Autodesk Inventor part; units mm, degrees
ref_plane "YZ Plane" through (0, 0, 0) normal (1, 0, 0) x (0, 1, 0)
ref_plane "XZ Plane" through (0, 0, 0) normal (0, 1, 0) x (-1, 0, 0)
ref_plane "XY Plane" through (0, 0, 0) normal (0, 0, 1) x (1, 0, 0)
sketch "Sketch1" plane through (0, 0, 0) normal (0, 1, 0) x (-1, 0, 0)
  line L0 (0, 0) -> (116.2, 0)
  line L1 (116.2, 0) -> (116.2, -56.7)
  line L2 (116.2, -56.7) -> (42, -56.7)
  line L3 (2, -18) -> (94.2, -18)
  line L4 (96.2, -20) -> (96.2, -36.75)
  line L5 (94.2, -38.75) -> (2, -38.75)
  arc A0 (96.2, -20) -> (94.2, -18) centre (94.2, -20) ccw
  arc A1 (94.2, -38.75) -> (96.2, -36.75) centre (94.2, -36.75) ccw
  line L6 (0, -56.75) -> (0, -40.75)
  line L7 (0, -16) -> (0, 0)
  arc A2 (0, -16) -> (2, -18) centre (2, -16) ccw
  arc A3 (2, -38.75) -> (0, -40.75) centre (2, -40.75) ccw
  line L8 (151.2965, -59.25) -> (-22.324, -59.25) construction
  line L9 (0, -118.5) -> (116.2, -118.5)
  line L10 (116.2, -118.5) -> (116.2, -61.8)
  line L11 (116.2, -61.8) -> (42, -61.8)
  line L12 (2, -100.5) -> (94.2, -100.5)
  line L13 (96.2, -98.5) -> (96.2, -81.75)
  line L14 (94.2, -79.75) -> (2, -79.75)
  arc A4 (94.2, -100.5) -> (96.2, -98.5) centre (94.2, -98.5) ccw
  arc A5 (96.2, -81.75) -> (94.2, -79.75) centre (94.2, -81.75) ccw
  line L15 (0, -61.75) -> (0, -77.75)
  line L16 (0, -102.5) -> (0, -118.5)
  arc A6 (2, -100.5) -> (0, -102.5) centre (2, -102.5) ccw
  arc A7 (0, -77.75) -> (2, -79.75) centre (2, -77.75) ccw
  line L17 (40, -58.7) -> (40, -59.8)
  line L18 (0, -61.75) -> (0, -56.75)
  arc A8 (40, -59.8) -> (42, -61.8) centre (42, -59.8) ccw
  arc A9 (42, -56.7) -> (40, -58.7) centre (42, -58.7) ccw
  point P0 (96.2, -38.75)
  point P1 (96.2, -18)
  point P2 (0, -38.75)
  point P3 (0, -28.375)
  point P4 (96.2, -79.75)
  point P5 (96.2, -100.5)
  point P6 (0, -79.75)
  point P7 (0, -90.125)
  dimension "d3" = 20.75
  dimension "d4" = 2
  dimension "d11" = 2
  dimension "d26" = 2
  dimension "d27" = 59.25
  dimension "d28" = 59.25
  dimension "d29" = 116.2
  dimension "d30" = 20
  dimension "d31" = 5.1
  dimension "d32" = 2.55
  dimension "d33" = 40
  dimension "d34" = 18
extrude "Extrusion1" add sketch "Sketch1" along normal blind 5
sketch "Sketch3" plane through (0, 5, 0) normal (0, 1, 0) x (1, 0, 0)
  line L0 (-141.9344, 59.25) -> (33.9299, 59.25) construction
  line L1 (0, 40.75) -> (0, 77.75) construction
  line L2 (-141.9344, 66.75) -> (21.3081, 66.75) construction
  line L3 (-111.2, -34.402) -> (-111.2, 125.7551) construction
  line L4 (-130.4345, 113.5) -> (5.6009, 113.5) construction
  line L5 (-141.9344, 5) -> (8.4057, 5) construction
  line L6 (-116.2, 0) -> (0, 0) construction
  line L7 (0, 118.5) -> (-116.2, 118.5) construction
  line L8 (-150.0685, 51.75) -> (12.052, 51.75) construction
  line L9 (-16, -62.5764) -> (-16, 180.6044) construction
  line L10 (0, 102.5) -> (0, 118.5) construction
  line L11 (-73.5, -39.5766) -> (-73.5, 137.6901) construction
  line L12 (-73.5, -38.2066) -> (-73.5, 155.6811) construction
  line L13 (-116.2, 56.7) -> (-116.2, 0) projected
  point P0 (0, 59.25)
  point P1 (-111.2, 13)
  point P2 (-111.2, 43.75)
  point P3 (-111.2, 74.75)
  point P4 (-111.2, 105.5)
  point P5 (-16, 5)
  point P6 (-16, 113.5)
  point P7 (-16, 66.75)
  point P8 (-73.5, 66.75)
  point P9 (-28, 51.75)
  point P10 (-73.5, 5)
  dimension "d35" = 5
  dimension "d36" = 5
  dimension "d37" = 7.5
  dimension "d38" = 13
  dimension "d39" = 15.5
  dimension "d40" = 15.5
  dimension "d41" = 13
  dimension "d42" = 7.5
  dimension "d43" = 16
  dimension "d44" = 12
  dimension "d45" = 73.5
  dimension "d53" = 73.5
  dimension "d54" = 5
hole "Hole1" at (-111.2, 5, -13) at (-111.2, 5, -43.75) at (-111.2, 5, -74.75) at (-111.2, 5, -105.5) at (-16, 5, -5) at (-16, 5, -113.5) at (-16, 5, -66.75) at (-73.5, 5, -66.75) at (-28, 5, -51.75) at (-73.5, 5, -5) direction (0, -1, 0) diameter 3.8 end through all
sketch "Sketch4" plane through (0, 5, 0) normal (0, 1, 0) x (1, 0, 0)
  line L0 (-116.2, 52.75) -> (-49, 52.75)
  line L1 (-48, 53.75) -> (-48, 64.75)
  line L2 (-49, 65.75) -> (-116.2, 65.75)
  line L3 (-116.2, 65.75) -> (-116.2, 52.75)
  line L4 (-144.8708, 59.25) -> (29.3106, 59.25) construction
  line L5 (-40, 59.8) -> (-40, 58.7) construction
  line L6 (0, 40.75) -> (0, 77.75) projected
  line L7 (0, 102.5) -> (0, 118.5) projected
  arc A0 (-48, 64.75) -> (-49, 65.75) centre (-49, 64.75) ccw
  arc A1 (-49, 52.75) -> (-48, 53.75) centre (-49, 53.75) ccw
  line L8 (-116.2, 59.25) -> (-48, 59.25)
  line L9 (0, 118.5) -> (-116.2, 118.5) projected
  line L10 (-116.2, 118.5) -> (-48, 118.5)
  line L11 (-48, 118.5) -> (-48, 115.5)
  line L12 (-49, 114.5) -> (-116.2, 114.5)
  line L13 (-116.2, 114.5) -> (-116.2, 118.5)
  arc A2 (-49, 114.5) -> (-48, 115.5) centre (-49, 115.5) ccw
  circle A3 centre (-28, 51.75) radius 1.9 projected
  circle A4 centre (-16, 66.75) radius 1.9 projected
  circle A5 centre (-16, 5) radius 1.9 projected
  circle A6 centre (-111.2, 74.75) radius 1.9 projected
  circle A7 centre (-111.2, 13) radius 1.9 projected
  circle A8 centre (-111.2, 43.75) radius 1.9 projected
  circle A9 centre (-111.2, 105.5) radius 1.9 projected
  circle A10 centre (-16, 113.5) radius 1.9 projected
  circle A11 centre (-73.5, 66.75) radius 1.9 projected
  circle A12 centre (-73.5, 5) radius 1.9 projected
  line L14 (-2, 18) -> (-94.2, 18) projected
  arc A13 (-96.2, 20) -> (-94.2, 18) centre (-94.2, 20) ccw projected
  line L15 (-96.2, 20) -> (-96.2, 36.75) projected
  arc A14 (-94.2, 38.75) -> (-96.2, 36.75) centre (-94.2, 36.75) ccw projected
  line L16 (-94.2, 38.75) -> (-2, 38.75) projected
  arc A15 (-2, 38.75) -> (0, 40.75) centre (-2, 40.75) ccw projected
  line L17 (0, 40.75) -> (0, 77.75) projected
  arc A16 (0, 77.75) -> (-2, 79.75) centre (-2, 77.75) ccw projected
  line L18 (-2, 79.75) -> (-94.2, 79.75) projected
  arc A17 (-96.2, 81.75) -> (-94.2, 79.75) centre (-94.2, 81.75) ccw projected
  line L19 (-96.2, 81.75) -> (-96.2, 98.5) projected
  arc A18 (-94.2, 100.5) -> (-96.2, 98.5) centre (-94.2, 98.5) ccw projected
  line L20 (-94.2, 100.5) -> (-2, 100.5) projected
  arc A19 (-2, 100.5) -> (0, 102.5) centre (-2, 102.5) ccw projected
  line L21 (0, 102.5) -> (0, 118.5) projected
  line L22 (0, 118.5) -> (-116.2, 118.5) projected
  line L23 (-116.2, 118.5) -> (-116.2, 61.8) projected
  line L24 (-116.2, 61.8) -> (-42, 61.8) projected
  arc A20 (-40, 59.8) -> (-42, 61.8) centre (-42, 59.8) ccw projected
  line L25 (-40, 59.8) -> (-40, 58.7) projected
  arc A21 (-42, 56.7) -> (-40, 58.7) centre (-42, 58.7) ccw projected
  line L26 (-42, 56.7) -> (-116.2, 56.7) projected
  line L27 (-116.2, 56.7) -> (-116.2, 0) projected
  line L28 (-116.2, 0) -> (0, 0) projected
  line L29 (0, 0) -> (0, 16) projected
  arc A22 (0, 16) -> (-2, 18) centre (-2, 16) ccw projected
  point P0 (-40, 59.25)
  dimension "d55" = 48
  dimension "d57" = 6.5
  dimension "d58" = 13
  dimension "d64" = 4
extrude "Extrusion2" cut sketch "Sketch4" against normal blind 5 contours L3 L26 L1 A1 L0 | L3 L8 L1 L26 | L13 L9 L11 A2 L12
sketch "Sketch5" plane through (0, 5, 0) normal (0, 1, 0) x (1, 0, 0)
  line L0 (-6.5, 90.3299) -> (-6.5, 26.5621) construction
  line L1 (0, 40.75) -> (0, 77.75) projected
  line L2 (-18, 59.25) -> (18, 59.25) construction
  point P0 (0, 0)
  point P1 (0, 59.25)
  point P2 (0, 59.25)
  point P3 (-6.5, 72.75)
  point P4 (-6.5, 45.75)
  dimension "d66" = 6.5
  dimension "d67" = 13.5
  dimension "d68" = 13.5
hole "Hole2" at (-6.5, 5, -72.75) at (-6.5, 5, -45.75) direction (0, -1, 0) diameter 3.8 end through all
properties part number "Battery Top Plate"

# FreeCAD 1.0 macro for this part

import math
import FreeCAD as App
import Part
import Sketcher

doc = App.newDocument("Part")
params = doc.addObject("Spreadsheet::Sheet", "Params")
for row, (alias, value) in enumerate([
    ("sketch1_radius", "2 mm"),
    ("sketch1_width", "116.2 mm"),
    ("sketch1_height", "37 mm"),
    ("pad1_length", "5 mm"),
    ("sketch2_diameter", "3.8 mm"),
    ("hole_diameter", "3.8 mm"),
    ("sketch3_height", "4 mm"),
    ("sketch3_height2", "6.5 mm"),
    ("sketch3_radius", "1 mm"),
    ("sketch3_width", "67.2 mm"),
    ("pocket1_length", "5 mm"),
    ("sketch4_diameter", "3.8 mm"),
    ("hole2_diameter", "3.8 mm"),
], start=1):
    params.set(f"A{row}", alias)
    params.set(f"B{row}", "=" + value)
    params.setAlias(f"B{row}", alias)

body = doc.addObject("PartDesign::Body", "Body")

sketch1 = doc.addObject("Sketcher::SketchObject", "Sketch")
body.addObject(sketch1)
sketch1.AttachmentSupport = (doc.XZ_Plane, [""])
sketch1.MapMode = "FlatFace"
sketch1.addGeometry(Part.LineSegment(App.Vector(-116.2, 0, 0), App.Vector(0, 0, 0)), False)
sketch1.addGeometry(Part.LineSegment(App.Vector(0, 0, 0), App.Vector(0, -16, 0)), False)
sketch1.addGeometry(Part.ArcOfCircle(Part.Circle(App.Vector(-2, -16, 0), App.Vector(0, 0, 1), 2), math.radians(-90), math.radians(0)), False)
sketch1.addGeometry(Part.LineSegment(App.Vector(-2, -18, 0), App.Vector(-94.2, -18, 0)), False)
sketch1.addGeometry(Part.ArcOfCircle(Part.Circle(App.Vector(-94.2, -20, 0), App.Vector(0, 0, 1), 2), math.radians(90), math.radians(180)), False)
sketch1.addGeometry(Part.LineSegment(App.Vector(-96.2, -20, 0), App.Vector(-96.2, -36.8, 0)), False)
sketch1.addGeometry(Part.ArcOfCircle(Part.Circle(App.Vector(-94.2, -36.8, 0), App.Vector(0, 0, 1), 2), math.radians(180), math.radians(270)), False)
sketch1.addGeometry(Part.LineSegment(App.Vector(-94.2, -38.8, 0), App.Vector(-2, -38.8, 0)), False)
sketch1.addGeometry(Part.ArcOfCircle(Part.Circle(App.Vector(-2, -40.8, 0), App.Vector(0, 0, 1), 2), math.radians(0), math.radians(90)), False)
sketch1.addGeometry(Part.LineSegment(App.Vector(0, -40.8, 0), App.Vector(0, -77.8, 0)), False)
sketch1.addGeometry(Part.ArcOfCircle(Part.Circle(App.Vector(-2, -77.8, 0), App.Vector(0, 0, 1), 2), math.radians(-90), math.radians(0)), False)
sketch1.addGeometry(Part.LineSegment(App.Vector(-2, -79.8, 0), App.Vector(-94.2, -79.8, 0)), False)
sketch1.addGeometry(Part.ArcOfCircle(Part.Circle(App.Vector(-94.2, -81.8, 0), App.Vector(0, 0, 1), 2), math.radians(90), math.radians(180)), False)
sketch1.addGeometry(Part.LineSegment(App.Vector(-96.2, -81.8, 0), App.Vector(-96.2, -98.5, 0)), False)
sketch1.addGeometry(Part.ArcOfCircle(Part.Circle(App.Vector(-94.2, -98.5, 0), App.Vector(0, 0, 1), 2), math.radians(180), math.radians(270)), False)
sketch1.addGeometry(Part.LineSegment(App.Vector(-94.2, -100.5, 0), App.Vector(-2, -100.5, 0)), False)
sketch1.addGeometry(Part.ArcOfCircle(Part.Circle(App.Vector(-2, -102.5, 0), App.Vector(0, 0, 1), 2), math.radians(0), math.radians(90)), False)
sketch1.addGeometry(Part.LineSegment(App.Vector(0, -102.5, 0), App.Vector(0, -118.5, 0)), False)
sketch1.addGeometry(Part.LineSegment(App.Vector(0, -118.5, 0), App.Vector(-116.2, -118.5, 0)), False)
sketch1.addGeometry(Part.LineSegment(App.Vector(-116.2, -118.5, 0), App.Vector(-116.2, -61.8, 0)), False)
sketch1.addGeometry(Part.LineSegment(App.Vector(-116.2, -61.8, 0), App.Vector(-42, -61.8, 0)), False)
sketch1.addGeometry(Part.ArcOfCircle(Part.Circle(App.Vector(-42, -59.8, 0), App.Vector(0, 0, 1), 2), math.radians(-90), math.radians(0)), False)
sketch1.addGeometry(Part.LineSegment(App.Vector(-40, -59.8, 0), App.Vector(-40, -58.7, 0)), False)
sketch1.addGeometry(Part.ArcOfCircle(Part.Circle(App.Vector(-42, -58.7, 0), App.Vector(0, 0, 1), 2), math.radians(0), math.radians(90)), False)
sketch1.addGeometry(Part.LineSegment(App.Vector(-42, -56.7, 0), App.Vector(-116.2, -56.7, 0)), False)
sketch1.addGeometry(Part.LineSegment(App.Vector(-116.2, -56.7, 0), App.Vector(-116.2, 0, 0)), False)
sketch1.addConstraint(Sketcher.Constraint("Coincident", 0, 2, 1, 1))
sketch1.addConstraint(Sketcher.Constraint("Tangent", 1, 2, 2, 2))
sketch1.addConstraint(Sketcher.Constraint("Tangent", 2, 1, 3, 1))
sketch1.addConstraint(Sketcher.Constraint("Tangent", 3, 2, 4, 1))
sketch1.addConstraint(Sketcher.Constraint("Tangent", 4, 2, 5, 1))
sketch1.addConstraint(Sketcher.Constraint("Tangent", 5, 2, 6, 1))
sketch1.addConstraint(Sketcher.Constraint("Tangent", 6, 2, 7, 1))
sketch1.addConstraint(Sketcher.Constraint("Tangent", 7, 2, 8, 2))
sketch1.addConstraint(Sketcher.Constraint("Tangent", 8, 1, 9, 1))
sketch1.addConstraint(Sketcher.Constraint("Tangent", 9, 2, 10, 2))
sketch1.addConstraint(Sketcher.Constraint("Tangent", 10, 1, 11, 1))
sketch1.addConstraint(Sketcher.Constraint("Tangent", 11, 2, 12, 1))
sketch1.addConstraint(Sketcher.Constraint("Tangent", 12, 2, 13, 1))
sketch1.addConstraint(Sketcher.Constraint("Tangent", 13, 2, 14, 1))
sketch1.addConstraint(Sketcher.Constraint("Tangent", 14, 2, 15, 1))
sketch1.addConstraint(Sketcher.Constraint("Tangent", 15, 2, 16, 2))
sketch1.addConstraint(Sketcher.Constraint("Tangent", 16, 1, 17, 1))
sketch1.addConstraint(Sketcher.Constraint("Coincident", 17, 2, 18, 1))
sketch1.addConstraint(Sketcher.Constraint("Coincident", 18, 2, 19, 1))
sketch1.addConstraint(Sketcher.Constraint("Coincident", 19, 2, 20, 1))
sketch1.addConstraint(Sketcher.Constraint("Tangent", 20, 2, 21, 1))
sketch1.addConstraint(Sketcher.Constraint("Tangent", 21, 2, 22, 1))
sketch1.addConstraint(Sketcher.Constraint("Tangent", 22, 2, 23, 1))
sketch1.addConstraint(Sketcher.Constraint("Tangent", 23, 2, 24, 1))
sketch1.addConstraint(Sketcher.Constraint("Coincident", 24, 2, 25, 1))
sketch1.addConstraint(Sketcher.Constraint("Coincident", 25, 2, 0, 1))
sketch1.addConstraint(Sketcher.Constraint("Horizontal", 0))
sketch1.addConstraint(Sketcher.Constraint("Vertical", 1))
sketch1.addConstraint(Sketcher.Constraint("Horizontal", 3))
sketch1.addConstraint(Sketcher.Constraint("Vertical", 5))
sketch1.addConstraint(Sketcher.Constraint("Horizontal", 7))
sketch1.addConstraint(Sketcher.Constraint("Vertical", 9))
sketch1.addConstraint(Sketcher.Constraint("Horizontal", 11))
sketch1.addConstraint(Sketcher.Constraint("Vertical", 13))
sketch1.addConstraint(Sketcher.Constraint("Horizontal", 15))
sketch1.addConstraint(Sketcher.Constraint("Vertical", 17))
sketch1.addConstraint(Sketcher.Constraint("Horizontal", 18))
sketch1.addConstraint(Sketcher.Constraint("Vertical", 19))
sketch1.addConstraint(Sketcher.Constraint("Horizontal", 20))
sketch1.addConstraint(Sketcher.Constraint("Vertical", 22))
sketch1.addConstraint(Sketcher.Constraint("Horizontal", 24))
sketch1.addConstraint(Sketcher.Constraint("Vertical", 25))
sketch1.addConstraint(Sketcher.Constraint("Coincident", 0, 2, -1, 1))
sketch1.addConstraint(Sketcher.Constraint("Equal", 2, 4))
sketch1.addConstraint(Sketcher.Constraint("Equal", 4, 6))
sketch1.addConstraint(Sketcher.Constraint("Equal", 6, 8))
sketch1.addConstraint(Sketcher.Constraint("Equal", 8, 10))
sketch1.addConstraint(Sketcher.Constraint("Equal", 10, 12))
sketch1.addConstraint(Sketcher.Constraint("Equal", 12, 14))
sketch1.addConstraint(Sketcher.Constraint("Equal", 14, 16))
sketch1.addConstraint(Sketcher.Constraint("Equal", 16, 21))
sketch1.addConstraint(Sketcher.Constraint("Equal", 21, 23))
sketch1.addConstraint(Sketcher.Constraint("PointOnObject", 8, 1, -2))
sketch1.addConstraint(Sketcher.Constraint("PointOnObject", 16, 1, -2))
sketch1.addConstraint(Sketcher.Constraint("Vertical", 6, 3, 12, 3))
sketch1.addConstraint(Sketcher.Constraint("Vertical", 19, 2, 24, 2))
sketch1.addConstraint(Sketcher.Constraint("Equal", 5, 13))
sketch1.addConstraint(Sketcher.Constraint("Equal", 1, 17))
sketch1.addConstraint(Sketcher.Constraint("Equal", 19, 25))
sketch1.addConstraint(Sketcher.Constraint("Radius", 2, 2.0))
sketch1.addConstraint(Sketcher.Constraint("DistanceX", 0, 1, 0, 2, 116.2))
sketch1.addConstraint(Sketcher.Constraint("DistanceY", 4, 3, -1, 1, 20.0))
sketch1.addConstraint(Sketcher.Constraint("DistanceX", 21, 2, -1, 1, 40.0))
sketch1.addConstraint(Sketcher.Constraint("DistanceX", 18, 2, 13, 2, 20.0))
sketch1.addConstraint(Sketcher.Constraint("DistanceY", 20, 2, 23, 2, 5.1))
sketch1.addConstraint(Sketcher.Constraint("DistanceY", 9, 2, 9, 1, 37.0))
sketch1.addConstraint(Sketcher.Constraint("DistanceY", 6, 3, 2, 3, 20.75))
sketch1.setExpression("Constraints[59]", "Params.sketch1_radius")
sketch1.setExpression("Constraints[60]", "Params.sketch1_width")
sketch1.setExpression("Constraints[65]", "Params.sketch1_height")
pad1 = doc.addObject("PartDesign::Pad", "Pad")
body.addObject(pad1)
pad1.Profile = sketch1
pad1.setExpression("Length", "Params.pad1_length")
pad1.Reversed = True

sketch2 = doc.addObject("Sketcher::SketchObject", "Sketch001")
body.addObject(sketch2)
sketch2.AttachmentSupport = (doc.XZ_Plane, [""])
sketch2.MapMode = "FlatFace"
sketch2.AttachmentOffset = App.Placement(App.Vector(0, 0, -5), App.Rotation())
sketch2.addGeometry(Part.Circle(App.Vector(-111.2, -13, 0), App.Vector(0, 0, 1), 1.9), False)
sketch2.addGeometry(Part.Circle(App.Vector(-111.2, -43.8, 0), App.Vector(0, 0, 1), 1.9), False)
sketch2.addGeometry(Part.Circle(App.Vector(-111.2, -74.8, 0), App.Vector(0, 0, 1), 1.9), False)
sketch2.addGeometry(Part.Circle(App.Vector(-111.2, -105.5, 0), App.Vector(0, 0, 1), 1.9), False)
sketch2.addGeometry(Part.Circle(App.Vector(-16, -5, 0), App.Vector(0, 0, 1), 1.9), False)
sketch2.addGeometry(Part.Circle(App.Vector(-16, -113.5, 0), App.Vector(0, 0, 1), 1.9), False)
sketch2.addGeometry(Part.Circle(App.Vector(-16, -66.8, 0), App.Vector(0, 0, 1), 1.9), False)
sketch2.addGeometry(Part.Circle(App.Vector(-73.5, -66.8, 0), App.Vector(0, 0, 1), 1.9), False)
sketch2.addGeometry(Part.Circle(App.Vector(-28, -51.8, 0), App.Vector(0, 0, 1), 1.9), False)
sketch2.addGeometry(Part.Circle(App.Vector(-73.5, -5, 0), App.Vector(0, 0, 1), 1.9), False)
sketch2.addConstraint(Sketcher.Constraint("Equal", 0, 1))
sketch2.addConstraint(Sketcher.Constraint("Equal", 1, 2))
sketch2.addConstraint(Sketcher.Constraint("Equal", 2, 3))
sketch2.addConstraint(Sketcher.Constraint("Equal", 3, 4))
sketch2.addConstraint(Sketcher.Constraint("Equal", 4, 5))
sketch2.addConstraint(Sketcher.Constraint("Equal", 5, 6))
sketch2.addConstraint(Sketcher.Constraint("Equal", 6, 7))
sketch2.addConstraint(Sketcher.Constraint("Equal", 7, 8))
sketch2.addConstraint(Sketcher.Constraint("Equal", 8, 9))
sketch2.addConstraint(Sketcher.Constraint("Horizontal", 6, 3, 7, 3))
sketch2.addConstraint(Sketcher.Constraint("Horizontal", 4, 3, 9, 3))
sketch2.addConstraint(Sketcher.Constraint("Vertical", 0, 3, 1, 3))
sketch2.addConstraint(Sketcher.Constraint("Vertical", 1, 3, 2, 3))
sketch2.addConstraint(Sketcher.Constraint("Vertical", 2, 3, 3, 3))
sketch2.addConstraint(Sketcher.Constraint("Vertical", 4, 3, 5, 3))
sketch2.addConstraint(Sketcher.Constraint("Vertical", 5, 3, 6, 3))
sketch2.addConstraint(Sketcher.Constraint("Vertical", 7, 3, 9, 3))
sketch2.addConstraint(Sketcher.Constraint("Diameter", 0, 3.8))
sketch2.addConstraint(Sketcher.Constraint("DistanceY", 0, 3, -1, 1, 13.0))
sketch2.addConstraint(Sketcher.Constraint("DistanceX", 4, 3, -1, 1, 16.0))
sketch2.addConstraint(Sketcher.Constraint("DistanceY", 4, 3, -1, 1, 5.0))
sketch2.addConstraint(Sketcher.Constraint("DistanceX", 8, 3, -1, 1, 28.0))
sketch2.addConstraint(Sketcher.Constraint("DistanceY", 2, 3, 1, 3, 31.0))
sketch2.addConstraint(Sketcher.Constraint("DistanceY", 5, 3, 3, 3, 8.0))
sketch2.addConstraint(Sketcher.Constraint("DistanceY", 2, 3, 6, 3, 8.0))
sketch2.addConstraint(Sketcher.Constraint("DistanceY", 6, 3, 8, 3, 15.0))
sketch2.addConstraint(Sketcher.Constraint("DistanceX", 0, 3, -1, 1, 111.2))
sketch2.addConstraint(Sketcher.Constraint("DistanceY", 3, 3, -1, 1, 105.5))
sketch2.addConstraint(Sketcher.Constraint("DistanceX", 7, 3, -1, 1, 73.5))
sketch2.addConstraint(Sketcher.Constraint("DistanceY", 1, 3, -1, 1, 43.75))
sketch2.setExpression("Constraints[17]", "Params.sketch2_diameter")
doc.recompute()
hole = doc.addObject("PartDesign::Hole", "Hole")
body.addObject(hole)
hole.Profile = sketch2
hole.ThreadType = "None"
hole.setExpression("Diameter", "Params.hole_diameter")
hole.DepthType = "ThroughAll"
hole.Reversed = True

sketch3 = doc.addObject("Sketcher::SketchObject", "Sketch002")
body.addObject(sketch3)
sketch3.AttachmentSupport = (doc.XZ_Plane, [""])
sketch3.MapMode = "FlatFace"
sketch3.AttachmentOffset = App.Placement(App.Vector(0, 0, -5), App.Rotation())
sketch3.addGeometry(Part.LineSegment(App.Vector(-116.2, -52.8, 0), App.Vector(-49, -52.8, 0)), False)
sketch3.addGeometry(Part.ArcOfCircle(Part.Circle(App.Vector(-49, -53.8, 0), App.Vector(0, 0, 1), 1), math.radians(0), math.radians(90)), False)
sketch3.addGeometry(Part.LineSegment(App.Vector(-48, -53.8, 0), App.Vector(-48, -59.2, 0)), False)
sketch3.addGeometry(Part.LineSegment(App.Vector(-48, -59.2, 0), App.Vector(-116.2, -59.2, 0)), False)
sketch3.addGeometry(Part.LineSegment(App.Vector(-116.2, -59.2, 0), App.Vector(-116.2, -52.8, 0)), False)
sketch3.addGeometry(Part.LineSegment(App.Vector(-116.2, -118.5, 0), App.Vector(-116.2, -114.5, 0)), False)
sketch3.addGeometry(Part.LineSegment(App.Vector(-116.2, -114.5, 0), App.Vector(-49, -114.5, 0)), False)
sketch3.addGeometry(Part.ArcOfCircle(Part.Circle(App.Vector(-49, -115.5, 0), App.Vector(0, 0, 1), 1), math.radians(0), math.radians(90)), False)
sketch3.addGeometry(Part.LineSegment(App.Vector(-48, -115.5, 0), App.Vector(-48, -118.5, 0)), False)
sketch3.addGeometry(Part.LineSegment(App.Vector(-48, -118.5, 0), App.Vector(-116.2, -118.5, 0)), False)
sketch3.addConstraint(Sketcher.Constraint("Tangent", 0, 2, 1, 2))
sketch3.addConstraint(Sketcher.Constraint("Tangent", 1, 1, 2, 1))
sketch3.addConstraint(Sketcher.Constraint("Coincident", 2, 2, 3, 1))
sketch3.addConstraint(Sketcher.Constraint("Coincident", 3, 2, 4, 1))
sketch3.addConstraint(Sketcher.Constraint("Coincident", 4, 2, 0, 1))
sketch3.addConstraint(Sketcher.Constraint("Coincident", 5, 2, 6, 1))
sketch3.addConstraint(Sketcher.Constraint("Tangent", 6, 2, 7, 2))
sketch3.addConstraint(Sketcher.Constraint("Tangent", 7, 1, 8, 1))
sketch3.addConstraint(Sketcher.Constraint("Coincident", 8, 2, 9, 1))
sketch3.addConstraint(Sketcher.Constraint("Coincident", 9, 2, 5, 1))
sketch3.addConstraint(Sketcher.Constraint("Horizontal", 0))
sketch3.addConstraint(Sketcher.Constraint("Vertical", 2))
sketch3.addConstraint(Sketcher.Constraint("Horizontal", 3))
sketch3.addConstraint(Sketcher.Constraint("Vertical", 4))
sketch3.addConstraint(Sketcher.Constraint("Vertical", 5))
sketch3.addConstraint(Sketcher.Constraint("Horizontal", 6))
sketch3.addConstraint(Sketcher.Constraint("Vertical", 8))
sketch3.addConstraint(Sketcher.Constraint("Horizontal", 9))
sketch3.addConstraint(Sketcher.Constraint("Equal", 1, 7))
sketch3.addConstraint(Sketcher.Constraint("Vertical", 1, 3, 7, 3))
sketch3.addConstraint(Sketcher.Constraint("Vertical", 4, 2, 5, 2))
sketch3.addConstraint(Sketcher.Constraint("DistanceY", 5, 1, 5, 2, 4.0))
sketch3.addConstraint(Sketcher.Constraint("DistanceY", 4, 1, 4, 2, 6.5))
sketch3.addConstraint(Sketcher.Constraint("DistanceX", 1, 1, -1, 1, 48.0))
sketch3.addConstraint(Sketcher.Constraint("Radius", 1, 1.0))
sketch3.addConstraint(Sketcher.Constraint("DistanceX", 0, 1, 0, 2, 67.2))
sketch3.addConstraint(Sketcher.Constraint("DistanceY", 7, 3, -1, 1, 115.5))
sketch3.addConstraint(Sketcher.Constraint("DistanceY", 1, 3, -1, 1, 53.75))
sketch3.setExpression("Constraints[21]", "Params.sketch3_height")
sketch3.setExpression("Constraints[22]", "Params.sketch3_height2")
sketch3.setExpression("Constraints[24]", "Params.sketch3_radius")
sketch3.setExpression("Constraints[25]", "Params.sketch3_width")
pocket1 = doc.addObject("PartDesign::Pocket", "Pocket")
body.addObject(pocket1)
pocket1.Profile = sketch3
pocket1.setExpression("Length", "Params.pocket1_length")
pocket1.Reversed = True

sketch4 = doc.addObject("Sketcher::SketchObject", "Sketch003")
body.addObject(sketch4)
sketch4.AttachmentSupport = (doc.XZ_Plane, [""])
sketch4.MapMode = "FlatFace"
sketch4.AttachmentOffset = App.Placement(App.Vector(0, 0, -5), App.Rotation())
sketch4.addGeometry(Part.Circle(App.Vector(-6.5, -72.8, 0), App.Vector(0, 0, 1), 1.9), False)
sketch4.addGeometry(Part.Circle(App.Vector(-6.5, -45.8, 0), App.Vector(0, 0, 1), 1.9), False)
sketch4.addConstraint(Sketcher.Constraint("Equal", 0, 1))
sketch4.addConstraint(Sketcher.Constraint("Vertical", 0, 3, 1, 3))
sketch4.addConstraint(Sketcher.Constraint("Diameter", 0, 3.8))
sketch4.addConstraint(Sketcher.Constraint("DistanceY", 0, 3, 1, 3, 27.0))
sketch4.addConstraint(Sketcher.Constraint("DistanceX", 0, 3, -1, 1, 6.5))
sketch4.addConstraint(Sketcher.Constraint("DistanceY", 0, 3, -1, 1, 72.75))
sketch4.setExpression("Constraints[2]", "Params.sketch4_diameter")
doc.recompute()
hole2 = doc.addObject("PartDesign::Hole", "Hole001")
body.addObject(hole2)
hole2.Profile = sketch4
hole2.ThreadType = "None"
hole2.setExpression("Diameter", "Params.hole2_diameter")
hole2.DepthType = "ThroughAll"
hole2.Reversed = True

doc.recompute()
